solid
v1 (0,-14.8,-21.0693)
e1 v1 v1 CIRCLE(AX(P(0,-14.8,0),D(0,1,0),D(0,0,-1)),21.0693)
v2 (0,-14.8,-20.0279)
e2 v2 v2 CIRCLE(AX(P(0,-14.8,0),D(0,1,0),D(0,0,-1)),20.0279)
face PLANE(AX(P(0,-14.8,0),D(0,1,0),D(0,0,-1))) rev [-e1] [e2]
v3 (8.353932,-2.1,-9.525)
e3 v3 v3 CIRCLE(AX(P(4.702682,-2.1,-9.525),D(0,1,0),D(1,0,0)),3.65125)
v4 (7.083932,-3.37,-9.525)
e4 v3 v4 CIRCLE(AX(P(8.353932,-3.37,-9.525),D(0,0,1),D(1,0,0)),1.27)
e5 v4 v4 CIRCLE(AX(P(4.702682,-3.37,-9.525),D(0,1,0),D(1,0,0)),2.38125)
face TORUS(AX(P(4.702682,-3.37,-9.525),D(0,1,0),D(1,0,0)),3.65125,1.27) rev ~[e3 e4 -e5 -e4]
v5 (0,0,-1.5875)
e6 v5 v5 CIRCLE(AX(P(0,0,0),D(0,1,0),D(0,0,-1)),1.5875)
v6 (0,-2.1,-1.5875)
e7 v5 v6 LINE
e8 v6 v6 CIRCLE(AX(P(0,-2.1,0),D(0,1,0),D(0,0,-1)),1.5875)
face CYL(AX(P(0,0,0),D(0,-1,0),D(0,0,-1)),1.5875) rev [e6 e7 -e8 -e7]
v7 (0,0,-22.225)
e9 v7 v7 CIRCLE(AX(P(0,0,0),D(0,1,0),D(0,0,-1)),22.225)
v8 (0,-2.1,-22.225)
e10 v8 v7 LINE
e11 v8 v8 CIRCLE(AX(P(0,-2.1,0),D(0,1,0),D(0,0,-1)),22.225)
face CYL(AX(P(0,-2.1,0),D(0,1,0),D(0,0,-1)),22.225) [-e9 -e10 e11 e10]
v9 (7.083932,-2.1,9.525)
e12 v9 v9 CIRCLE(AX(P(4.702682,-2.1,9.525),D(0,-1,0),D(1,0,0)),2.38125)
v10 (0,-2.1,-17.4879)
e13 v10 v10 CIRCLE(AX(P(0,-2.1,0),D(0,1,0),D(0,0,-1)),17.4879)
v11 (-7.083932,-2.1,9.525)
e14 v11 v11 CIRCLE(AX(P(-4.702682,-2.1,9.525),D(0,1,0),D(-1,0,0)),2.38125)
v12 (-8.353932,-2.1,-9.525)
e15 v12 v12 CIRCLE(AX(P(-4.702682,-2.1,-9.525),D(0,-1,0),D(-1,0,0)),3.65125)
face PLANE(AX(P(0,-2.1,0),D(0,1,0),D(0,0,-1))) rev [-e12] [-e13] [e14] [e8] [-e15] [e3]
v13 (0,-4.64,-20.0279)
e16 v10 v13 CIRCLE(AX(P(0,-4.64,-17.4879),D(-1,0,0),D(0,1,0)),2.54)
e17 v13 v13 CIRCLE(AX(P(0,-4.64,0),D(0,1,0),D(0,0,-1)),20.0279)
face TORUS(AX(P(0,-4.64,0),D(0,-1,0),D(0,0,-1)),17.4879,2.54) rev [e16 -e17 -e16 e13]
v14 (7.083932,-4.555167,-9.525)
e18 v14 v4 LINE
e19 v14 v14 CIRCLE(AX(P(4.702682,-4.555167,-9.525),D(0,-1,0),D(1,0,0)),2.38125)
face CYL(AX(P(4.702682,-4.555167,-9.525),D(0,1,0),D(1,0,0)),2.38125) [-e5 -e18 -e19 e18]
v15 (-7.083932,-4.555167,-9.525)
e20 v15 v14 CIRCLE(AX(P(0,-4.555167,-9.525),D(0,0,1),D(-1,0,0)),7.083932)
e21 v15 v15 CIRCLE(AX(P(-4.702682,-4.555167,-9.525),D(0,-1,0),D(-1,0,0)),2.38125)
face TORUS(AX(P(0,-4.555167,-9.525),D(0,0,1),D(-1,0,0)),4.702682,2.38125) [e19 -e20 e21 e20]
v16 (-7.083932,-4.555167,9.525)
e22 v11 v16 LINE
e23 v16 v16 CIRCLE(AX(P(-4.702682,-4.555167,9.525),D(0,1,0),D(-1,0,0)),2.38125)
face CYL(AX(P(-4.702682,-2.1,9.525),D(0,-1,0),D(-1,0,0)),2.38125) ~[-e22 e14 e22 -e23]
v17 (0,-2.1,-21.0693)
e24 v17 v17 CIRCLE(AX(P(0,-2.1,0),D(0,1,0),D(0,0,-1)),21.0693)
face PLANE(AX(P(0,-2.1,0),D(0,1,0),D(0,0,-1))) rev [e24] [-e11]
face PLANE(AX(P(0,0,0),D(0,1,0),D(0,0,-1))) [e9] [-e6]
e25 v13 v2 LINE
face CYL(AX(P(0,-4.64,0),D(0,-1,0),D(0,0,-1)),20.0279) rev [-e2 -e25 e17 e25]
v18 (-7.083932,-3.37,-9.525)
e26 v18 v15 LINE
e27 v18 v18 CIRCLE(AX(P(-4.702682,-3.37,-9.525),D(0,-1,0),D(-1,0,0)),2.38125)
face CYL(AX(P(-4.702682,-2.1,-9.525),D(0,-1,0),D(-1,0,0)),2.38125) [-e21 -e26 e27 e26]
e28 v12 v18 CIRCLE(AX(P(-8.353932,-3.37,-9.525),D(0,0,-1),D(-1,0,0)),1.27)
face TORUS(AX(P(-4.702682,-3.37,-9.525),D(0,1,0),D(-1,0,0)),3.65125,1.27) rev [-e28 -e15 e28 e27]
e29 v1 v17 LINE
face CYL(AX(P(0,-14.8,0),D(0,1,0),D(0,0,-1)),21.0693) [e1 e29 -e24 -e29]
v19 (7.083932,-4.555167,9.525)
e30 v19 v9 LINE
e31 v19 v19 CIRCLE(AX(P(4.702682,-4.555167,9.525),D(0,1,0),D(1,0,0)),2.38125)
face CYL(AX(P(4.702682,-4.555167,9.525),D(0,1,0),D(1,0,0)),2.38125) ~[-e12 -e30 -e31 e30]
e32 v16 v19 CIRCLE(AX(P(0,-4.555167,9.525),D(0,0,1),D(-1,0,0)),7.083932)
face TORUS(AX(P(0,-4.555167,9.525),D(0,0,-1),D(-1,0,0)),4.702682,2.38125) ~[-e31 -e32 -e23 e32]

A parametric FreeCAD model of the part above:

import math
import FreeCAD as App
import Part
import Sketcher
Q = App.Units.Quantity


def edges_at(feature, points):
    """Names of the edges that pass closest to the given points."""
    edges = feature.Shape.Edges
    near = lambda p: min(range(len(edges)), key=lambda i: edges[i].distToShape(Part.Vertex(*p))[0])
    return sorted({f"Edge{near(p) + 1}" for p in points})

doc = App.newDocument("Part")
body = doc.addObject("PartDesign::Body", "Body")

# Sketch on XY plane
sketch1 = body.newObject("Sketcher::SketchObject", "Sketch")
sketch1.AttachmentSupport = (doc.getObject("XY_Plane"), [""])
sketch1.MapMode = "FlatFace"
sketch1.addGeometry(Part.LineSegment(App.Vector(-21.0693, -2.1, 0), App.Vector(-21.0693, -14.8, 0)), False)
sketch1.addGeometry(Part.LineSegment(App.Vector(-21.0693, -14.8, 0), App.Vector(-20.0279, -14.8, 0)), False)
sketch1.addGeometry(Part.LineSegment(App.Vector(-20.0279, -14.8, 0), App.Vector(-20.0279, -4.64, 0)), False)
sketch1.addGeometry(Part.ArcOfCircle(Part.Circle(App.Vector(-17.4879, -4.64, 0), App.Vector(0, 0, 1), 2.54), math.radians(90), math.radians(180)), False)
sketch1.addGeometry(Part.LineSegment(App.Vector(-17.4879, -2.1, 0), App.Vector(-1.5875, -2.1, 0)), False)
sketch1.addGeometry(Part.LineSegment(App.Vector(-1.5875, -2.1, 0), App.Vector(-1.5875, 0, 0)), False)
sketch1.addGeometry(Part.LineSegment(App.Vector(-1.5875, 0, 0), App.Vector(-22.225, 0, 0)), False)
sketch1.addGeometry(Part.LineSegment(App.Vector(-22.225, 0, 0), App.Vector(-22.225, -2.1, 0)), False)
sketch1.addGeometry(Part.LineSegment(App.Vector(-22.225, -2.1, 0), App.Vector(-21.0693, -2.1, 0)), False)
sketch1.addConstraint(Sketcher.Constraint("Coincident", 0, 2, 1, 1))
sketch1.addConstraint(Sketcher.Constraint("Coincident", 1, 2, 2, 1))
sketch1.addConstraint(Sketcher.Constraint("Tangent", 2, 2, 3, 2))
sketch1.addConstraint(Sketcher.Constraint("Tangent", 3, 1, 4, 1))
sketch1.addConstraint(Sketcher.Constraint("Coincident", 4, 2, 5, 1))
sketch1.addConstraint(Sketcher.Constraint("Coincident", 5, 2, 6, 1))
sketch1.addConstraint(Sketcher.Constraint("Coincident", 6, 2, 7, 1))
sketch1.addConstraint(Sketcher.Constraint("Coincident", 7, 2, 8, 1))
sketch1.addConstraint(Sketcher.Constraint("Coincident", 8, 2, 0, 1))
sketch1.addConstraint(Sketcher.Constraint("Vertical", 0))
sketch1.addConstraint(Sketcher.Constraint("Horizontal", 1))
sketch1.addConstraint(Sketcher.Constraint("Vertical", 2))
sketch1.addConstraint(Sketcher.Constraint("Horizontal", 4))
sketch1.addConstraint(Sketcher.Constraint("Vertical", 5))
sketch1.addConstraint(Sketcher.Constraint("Horizontal", 6))
sketch1.addConstraint(Sketcher.Constraint("Vertical", 7))
sketch1.addConstraint(Sketcher.Constraint("Horizontal", 8))
sketch1.addConstraint(Sketcher.Constraint("PointOnObject", 5, 2, -1))
sketch1.addConstraint(Sketcher.Constraint("Horizontal", 4, 2, 7, 2))
sketch1.addConstraint(Sketcher.Constraint("Radius", 3, Q("0.1 in")))
sketch1.addConstraint(Sketcher.Constraint("DistanceY", 0, 2, 0, 1, Q("0.5 in")))
sketch1.addConstraint(Sketcher.Constraint("DistanceX", 1, 1, 1, 2, Q("0.041 in")))
sketch1.addConstraint(Sketcher.Constraint("DistanceX", 4, 1, 4, 2, Q("0.626 in")))
sketch1.addConstraint(Sketcher.Constraint("DistanceX", 6, 2, 6, 1, Q("0.8125 in")))
sketch1.addConstraint(Sketcher.Constraint("DistanceX", 4, 2, -1, 1, Q("0.0625 in")))
sketch1.addConstraint(Sketcher.Constraint("DistanceY", 5, 1, 5, 2, 2.1))
revolution = body.newObject("PartDesign::Revolution", "Revolution")
revolution.Profile = sketch1
revolution.ReferenceAxis = (sketch1, ["V_Axis"])
revolution.Angle = 360

# Sketch on XZ plane
sketch2 = body.newObject("Sketcher::SketchObject", "Sketch001")
sketch2.AttachmentSupport = (doc.getObject("XZ_Plane"), [""])
sketch2.MapMode = "FlatFace"
sketch2.AttachmentOffset = App.Placement(App.Vector(0, 0, 2.1), App.Rotation())
sketch2.addGeometry(Part.Circle(App.Vector(4.702682, -9.525, 0), App.Vector(0, 0, 1), 2.38125), False)
sketch2.addConstraint(Sketcher.Constraint("Diameter", 0, Q("0.1875 in")))
sketch2.addConstraint(Sketcher.Constraint("DistanceY", 0, 3, -1, 1, Q("0.375 in")))
sketch2.addConstraint(Sketcher.Constraint("DistanceX", -1, 1, 0, 3, 4.702682))

# Sketch on XY plane
sketch3 = body.newObject("Sketcher::SketchObject", "Sketch002")
sketch3.AttachmentSupport = (doc.getObject("XY_Plane"), [""])
sketch3.MapMode = "FlatFace"
sketch3.AttachmentOffset = App.Placement(App.Vector(0, 0, -0.375 * 25.4), App.Rotation())
sketch3.addGeometry(Part.LineSegment(App.Vector(-1.5875, -2.1, 0), App.Vector(-1.5875, -4.555167, 0)), False)
sketch3.addGeometry(Part.ArcOfCircle(Part.Circle(App.Vector(0, -4.555167, 0), App.Vector(0, 0, 1), 1.5875), math.radians(180), math.radians(360)), False)
sketch3.addGeometry(Part.LineSegment(App.Vector(1.5875, -4.555167, 0), App.Vector(1.5875, -2.1, 0)), False)
sketch3.addConstraint(Sketcher.Constraint("Tangent", 0, 2, 1, 1))
sketch3.addConstraint(Sketcher.Constraint("Tangent", 1, 2, 2, 1))
sketch3.addConstraint(Sketcher.Constraint("Vertical", 0))
sketch3.addConstraint(Sketcher.Constraint("Vertical", 2))
sketch3.addConstraint(Sketcher.Constraint("Symmetric", 0, 1, 2, 2, -2))
sketch3.addConstraint(Sketcher.Constraint("Radius", 1, Q("0.0625 in")))
sketch3.addConstraint(Sketcher.Constraint("DistanceY", 0, 1, -1, 1, 2.1))
sketch3.addConstraint(Sketcher.Constraint("DistanceY", 0, 2, 0, 1, 2.455167))
doc.recompute()

additivepipe = body.newObject("PartDesign::AdditivePipe", "AdditivePipe")
additivepipe.Profile = sketch2
additivepipe.Spine = (sketch3, ["Edge1", "Edge2", "Edge3"])
doc.recompute()

fillet = body.newObject("PartDesign::Fillet", "Fillet")
fillet.Base = (additivepipe, edges_at(additivepipe, [(2.321, -2.1, -9.525), (-2.321, -2.1, -9.525)]))
fillet.Radius = Q("0.05 in")
doc.recompute()

mirrored = body.newObject("PartDesign::Mirrored", "Mirrored")
mirrored.Originals = [additivepipe]
mirrored.MirrorPlane = (doc.getObject("XY_Plane"), [""])
body.Tip = mirrored

doc.recompute()
